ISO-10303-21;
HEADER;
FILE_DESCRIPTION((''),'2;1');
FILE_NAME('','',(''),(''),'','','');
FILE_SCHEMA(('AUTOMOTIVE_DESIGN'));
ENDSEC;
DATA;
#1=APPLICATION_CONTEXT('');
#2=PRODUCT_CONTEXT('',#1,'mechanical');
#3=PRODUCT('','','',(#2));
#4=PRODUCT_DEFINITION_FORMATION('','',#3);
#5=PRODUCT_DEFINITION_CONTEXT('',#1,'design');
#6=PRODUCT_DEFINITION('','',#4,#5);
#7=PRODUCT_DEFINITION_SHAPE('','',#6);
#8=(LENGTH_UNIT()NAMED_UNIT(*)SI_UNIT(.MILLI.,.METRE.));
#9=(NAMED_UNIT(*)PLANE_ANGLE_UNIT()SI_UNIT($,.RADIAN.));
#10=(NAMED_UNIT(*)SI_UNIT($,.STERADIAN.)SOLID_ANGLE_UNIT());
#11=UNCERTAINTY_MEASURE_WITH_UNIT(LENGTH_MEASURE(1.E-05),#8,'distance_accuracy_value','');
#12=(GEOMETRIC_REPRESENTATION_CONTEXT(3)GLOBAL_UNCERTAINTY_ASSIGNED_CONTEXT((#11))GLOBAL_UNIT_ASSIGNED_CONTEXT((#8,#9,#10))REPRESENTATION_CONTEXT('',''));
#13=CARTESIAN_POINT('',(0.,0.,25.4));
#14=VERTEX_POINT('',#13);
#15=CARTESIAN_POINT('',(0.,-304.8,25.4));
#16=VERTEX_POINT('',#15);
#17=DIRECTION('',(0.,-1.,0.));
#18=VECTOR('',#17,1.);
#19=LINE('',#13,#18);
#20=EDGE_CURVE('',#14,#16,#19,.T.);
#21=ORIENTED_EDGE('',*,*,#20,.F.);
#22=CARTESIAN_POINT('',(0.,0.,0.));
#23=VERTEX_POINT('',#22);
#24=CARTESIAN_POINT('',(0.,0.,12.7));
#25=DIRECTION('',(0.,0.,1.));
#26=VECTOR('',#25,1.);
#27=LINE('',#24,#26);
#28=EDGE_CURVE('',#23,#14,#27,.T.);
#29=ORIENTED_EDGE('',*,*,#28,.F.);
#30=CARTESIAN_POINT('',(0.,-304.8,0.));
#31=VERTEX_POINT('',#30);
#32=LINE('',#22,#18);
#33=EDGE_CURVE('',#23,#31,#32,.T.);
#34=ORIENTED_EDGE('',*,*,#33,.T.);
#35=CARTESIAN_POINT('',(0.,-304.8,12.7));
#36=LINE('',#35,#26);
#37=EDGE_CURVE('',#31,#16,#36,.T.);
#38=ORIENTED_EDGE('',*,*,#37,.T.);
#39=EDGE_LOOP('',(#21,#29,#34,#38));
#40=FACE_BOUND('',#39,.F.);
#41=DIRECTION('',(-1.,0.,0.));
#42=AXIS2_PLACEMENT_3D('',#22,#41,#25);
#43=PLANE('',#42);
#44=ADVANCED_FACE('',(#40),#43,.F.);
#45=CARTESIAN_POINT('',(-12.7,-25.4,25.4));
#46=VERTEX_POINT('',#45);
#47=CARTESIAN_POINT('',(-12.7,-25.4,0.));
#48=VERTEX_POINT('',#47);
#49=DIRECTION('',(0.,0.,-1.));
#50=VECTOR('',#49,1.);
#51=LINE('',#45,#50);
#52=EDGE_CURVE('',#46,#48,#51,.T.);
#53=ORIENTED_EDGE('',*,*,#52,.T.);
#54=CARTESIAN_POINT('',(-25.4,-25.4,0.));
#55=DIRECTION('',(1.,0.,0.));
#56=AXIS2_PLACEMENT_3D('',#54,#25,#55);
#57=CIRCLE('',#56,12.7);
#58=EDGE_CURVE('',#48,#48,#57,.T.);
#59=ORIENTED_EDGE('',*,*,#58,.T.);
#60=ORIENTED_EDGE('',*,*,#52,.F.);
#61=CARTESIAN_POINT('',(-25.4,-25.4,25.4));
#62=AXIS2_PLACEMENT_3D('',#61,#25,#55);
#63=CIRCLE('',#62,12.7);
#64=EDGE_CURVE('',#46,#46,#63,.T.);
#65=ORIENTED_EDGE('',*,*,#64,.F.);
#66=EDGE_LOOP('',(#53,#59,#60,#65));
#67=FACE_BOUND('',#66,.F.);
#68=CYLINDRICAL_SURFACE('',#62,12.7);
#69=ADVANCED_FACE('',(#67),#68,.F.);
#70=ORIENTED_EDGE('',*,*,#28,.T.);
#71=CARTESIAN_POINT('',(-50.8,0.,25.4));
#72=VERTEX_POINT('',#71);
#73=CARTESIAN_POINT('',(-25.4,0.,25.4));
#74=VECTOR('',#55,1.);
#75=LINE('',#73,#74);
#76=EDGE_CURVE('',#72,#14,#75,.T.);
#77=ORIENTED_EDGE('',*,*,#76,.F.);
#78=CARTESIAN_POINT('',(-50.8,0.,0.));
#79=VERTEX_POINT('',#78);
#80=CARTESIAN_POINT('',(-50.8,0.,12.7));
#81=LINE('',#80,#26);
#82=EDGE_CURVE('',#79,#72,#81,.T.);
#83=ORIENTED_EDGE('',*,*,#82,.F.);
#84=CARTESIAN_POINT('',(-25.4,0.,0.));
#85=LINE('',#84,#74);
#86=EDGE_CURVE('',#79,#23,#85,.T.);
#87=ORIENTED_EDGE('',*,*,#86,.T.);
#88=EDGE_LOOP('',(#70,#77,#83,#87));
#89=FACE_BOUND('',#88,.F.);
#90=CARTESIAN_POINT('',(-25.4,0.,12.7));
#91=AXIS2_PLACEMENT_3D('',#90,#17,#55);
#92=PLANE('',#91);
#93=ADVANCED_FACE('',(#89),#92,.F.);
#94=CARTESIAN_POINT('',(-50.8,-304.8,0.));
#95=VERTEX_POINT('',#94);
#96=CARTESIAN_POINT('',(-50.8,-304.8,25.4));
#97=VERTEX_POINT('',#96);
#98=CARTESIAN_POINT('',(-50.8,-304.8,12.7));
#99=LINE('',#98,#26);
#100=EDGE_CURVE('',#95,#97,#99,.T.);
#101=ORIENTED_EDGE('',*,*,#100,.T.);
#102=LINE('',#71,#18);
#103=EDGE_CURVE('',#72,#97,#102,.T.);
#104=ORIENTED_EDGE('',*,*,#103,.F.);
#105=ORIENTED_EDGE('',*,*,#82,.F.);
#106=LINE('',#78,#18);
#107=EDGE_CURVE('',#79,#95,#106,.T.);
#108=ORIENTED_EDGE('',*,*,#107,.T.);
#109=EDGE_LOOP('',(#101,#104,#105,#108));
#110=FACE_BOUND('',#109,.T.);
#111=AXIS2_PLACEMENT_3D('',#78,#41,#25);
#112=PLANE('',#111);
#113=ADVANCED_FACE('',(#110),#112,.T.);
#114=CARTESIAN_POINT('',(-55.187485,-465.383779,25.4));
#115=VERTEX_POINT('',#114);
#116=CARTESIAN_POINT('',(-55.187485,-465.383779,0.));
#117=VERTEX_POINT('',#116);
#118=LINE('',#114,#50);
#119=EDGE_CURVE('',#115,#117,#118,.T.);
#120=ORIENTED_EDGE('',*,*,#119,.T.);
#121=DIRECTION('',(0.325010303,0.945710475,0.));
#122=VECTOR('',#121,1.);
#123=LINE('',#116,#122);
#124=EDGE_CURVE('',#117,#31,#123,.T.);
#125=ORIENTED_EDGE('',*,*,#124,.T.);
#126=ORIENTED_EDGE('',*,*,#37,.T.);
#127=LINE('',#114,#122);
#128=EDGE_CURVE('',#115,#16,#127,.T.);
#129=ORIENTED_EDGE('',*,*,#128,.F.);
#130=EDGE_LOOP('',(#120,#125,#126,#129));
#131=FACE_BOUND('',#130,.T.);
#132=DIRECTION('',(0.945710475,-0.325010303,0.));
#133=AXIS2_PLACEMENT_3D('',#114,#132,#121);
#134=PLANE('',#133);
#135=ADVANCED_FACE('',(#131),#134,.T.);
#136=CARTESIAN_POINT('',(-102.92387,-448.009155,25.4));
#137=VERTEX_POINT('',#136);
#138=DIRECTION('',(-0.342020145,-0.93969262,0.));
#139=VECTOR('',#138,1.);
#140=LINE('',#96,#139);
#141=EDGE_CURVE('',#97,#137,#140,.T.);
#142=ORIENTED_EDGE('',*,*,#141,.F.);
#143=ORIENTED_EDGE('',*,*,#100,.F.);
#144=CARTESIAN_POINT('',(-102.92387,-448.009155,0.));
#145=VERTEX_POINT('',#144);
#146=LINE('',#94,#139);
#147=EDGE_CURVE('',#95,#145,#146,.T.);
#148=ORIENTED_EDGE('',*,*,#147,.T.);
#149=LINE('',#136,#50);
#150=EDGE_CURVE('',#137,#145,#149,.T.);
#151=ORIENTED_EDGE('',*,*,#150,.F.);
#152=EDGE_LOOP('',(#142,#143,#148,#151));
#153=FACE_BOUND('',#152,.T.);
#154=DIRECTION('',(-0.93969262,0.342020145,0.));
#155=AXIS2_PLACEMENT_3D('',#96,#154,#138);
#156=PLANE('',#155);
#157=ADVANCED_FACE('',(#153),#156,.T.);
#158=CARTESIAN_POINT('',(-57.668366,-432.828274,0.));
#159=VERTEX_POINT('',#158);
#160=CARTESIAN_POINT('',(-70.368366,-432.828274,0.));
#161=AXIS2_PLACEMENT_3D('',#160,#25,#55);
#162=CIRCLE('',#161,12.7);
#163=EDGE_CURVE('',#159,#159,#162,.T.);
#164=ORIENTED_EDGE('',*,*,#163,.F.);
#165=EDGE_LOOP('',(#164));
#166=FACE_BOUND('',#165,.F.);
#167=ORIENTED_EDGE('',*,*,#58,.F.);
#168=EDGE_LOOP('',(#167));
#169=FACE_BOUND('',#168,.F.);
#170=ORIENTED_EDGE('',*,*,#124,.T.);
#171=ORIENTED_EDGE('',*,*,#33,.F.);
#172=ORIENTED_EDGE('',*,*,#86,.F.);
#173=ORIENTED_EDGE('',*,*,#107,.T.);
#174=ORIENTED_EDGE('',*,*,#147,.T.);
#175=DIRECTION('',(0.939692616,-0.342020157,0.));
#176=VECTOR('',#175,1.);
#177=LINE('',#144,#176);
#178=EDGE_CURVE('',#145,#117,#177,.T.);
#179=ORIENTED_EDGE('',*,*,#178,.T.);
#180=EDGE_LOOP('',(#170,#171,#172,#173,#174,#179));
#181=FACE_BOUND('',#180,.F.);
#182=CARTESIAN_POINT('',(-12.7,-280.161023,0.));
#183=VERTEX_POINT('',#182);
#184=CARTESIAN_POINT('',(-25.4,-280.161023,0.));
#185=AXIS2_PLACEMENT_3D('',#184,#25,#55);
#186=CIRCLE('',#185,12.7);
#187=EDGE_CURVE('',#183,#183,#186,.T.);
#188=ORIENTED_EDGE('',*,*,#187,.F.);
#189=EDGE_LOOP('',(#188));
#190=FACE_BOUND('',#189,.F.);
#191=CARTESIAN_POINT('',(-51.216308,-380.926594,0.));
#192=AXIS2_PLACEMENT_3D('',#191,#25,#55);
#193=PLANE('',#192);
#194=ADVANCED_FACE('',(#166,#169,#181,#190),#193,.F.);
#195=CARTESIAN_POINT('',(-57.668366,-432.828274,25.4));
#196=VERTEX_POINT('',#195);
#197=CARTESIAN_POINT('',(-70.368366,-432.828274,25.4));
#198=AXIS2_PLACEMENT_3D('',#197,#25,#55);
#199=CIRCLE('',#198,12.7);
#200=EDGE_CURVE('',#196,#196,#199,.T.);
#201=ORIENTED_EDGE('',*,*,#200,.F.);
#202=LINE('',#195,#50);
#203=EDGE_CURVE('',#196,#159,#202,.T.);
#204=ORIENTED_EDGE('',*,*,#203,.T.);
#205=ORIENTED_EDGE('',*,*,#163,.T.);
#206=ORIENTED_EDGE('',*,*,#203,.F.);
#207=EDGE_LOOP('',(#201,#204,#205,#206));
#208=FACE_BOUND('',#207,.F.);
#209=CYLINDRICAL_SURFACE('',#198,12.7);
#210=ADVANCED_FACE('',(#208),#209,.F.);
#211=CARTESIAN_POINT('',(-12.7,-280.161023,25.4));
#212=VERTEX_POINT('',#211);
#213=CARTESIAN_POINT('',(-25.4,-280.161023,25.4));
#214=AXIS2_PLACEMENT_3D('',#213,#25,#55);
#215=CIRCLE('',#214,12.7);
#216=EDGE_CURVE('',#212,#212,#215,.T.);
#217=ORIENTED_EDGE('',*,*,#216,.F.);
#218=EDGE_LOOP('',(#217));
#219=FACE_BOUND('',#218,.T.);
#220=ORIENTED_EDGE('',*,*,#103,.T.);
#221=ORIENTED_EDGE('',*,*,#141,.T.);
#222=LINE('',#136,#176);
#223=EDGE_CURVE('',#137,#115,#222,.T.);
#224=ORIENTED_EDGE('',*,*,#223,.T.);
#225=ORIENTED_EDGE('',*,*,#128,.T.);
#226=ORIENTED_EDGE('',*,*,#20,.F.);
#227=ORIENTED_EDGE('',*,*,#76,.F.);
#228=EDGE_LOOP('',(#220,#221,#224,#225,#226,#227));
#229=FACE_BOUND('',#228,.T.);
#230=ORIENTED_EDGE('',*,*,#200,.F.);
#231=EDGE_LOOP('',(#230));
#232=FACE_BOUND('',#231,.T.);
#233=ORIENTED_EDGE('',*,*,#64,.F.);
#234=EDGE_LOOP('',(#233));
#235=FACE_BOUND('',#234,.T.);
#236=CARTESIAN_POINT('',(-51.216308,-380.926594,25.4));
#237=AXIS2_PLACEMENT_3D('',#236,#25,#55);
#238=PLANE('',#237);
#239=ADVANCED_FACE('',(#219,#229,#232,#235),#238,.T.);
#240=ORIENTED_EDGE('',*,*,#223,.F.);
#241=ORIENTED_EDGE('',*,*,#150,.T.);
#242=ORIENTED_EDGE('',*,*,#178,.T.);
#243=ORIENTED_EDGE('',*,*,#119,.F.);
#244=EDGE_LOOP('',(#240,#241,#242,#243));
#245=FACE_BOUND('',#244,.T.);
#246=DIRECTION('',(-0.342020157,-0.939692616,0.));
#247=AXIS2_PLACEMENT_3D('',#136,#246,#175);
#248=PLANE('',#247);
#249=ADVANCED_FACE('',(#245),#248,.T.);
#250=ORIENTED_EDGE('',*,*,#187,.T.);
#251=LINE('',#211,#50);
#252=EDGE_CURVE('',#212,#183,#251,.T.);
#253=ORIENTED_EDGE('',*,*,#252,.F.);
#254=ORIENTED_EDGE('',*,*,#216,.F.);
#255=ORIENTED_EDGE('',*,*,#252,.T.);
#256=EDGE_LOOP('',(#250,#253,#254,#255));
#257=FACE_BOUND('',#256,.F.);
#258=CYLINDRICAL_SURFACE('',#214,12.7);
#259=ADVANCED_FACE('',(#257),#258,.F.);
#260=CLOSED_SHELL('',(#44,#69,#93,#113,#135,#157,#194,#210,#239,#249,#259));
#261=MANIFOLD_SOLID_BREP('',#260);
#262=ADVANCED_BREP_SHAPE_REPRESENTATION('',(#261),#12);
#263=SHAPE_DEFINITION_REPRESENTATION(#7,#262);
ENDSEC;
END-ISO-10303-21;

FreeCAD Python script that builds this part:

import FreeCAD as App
import Part
import Sketcher

V = App.Vector
Q = App.Units.Quantity

doc = App.newDocument("Part")
params = doc.addObject("Spreadsheet::Sheet", "Params")
for row, (alias, value) in enumerate([
    ("sketch1_width", "2 in"),
    ("sketch1_height", "1 in"),
    ("pad1_length", "12 in"),
    ("sketch2_width", "2 in"),
    ("sketch2_length", "6 in"),
    ("sketch2_length2", "2 in"),
    ("pad2_length", "1 in"),
    ("sketch3_diameter", "1 in"),
    ("pocket1_length", "1 in"),
    ("sketch4_diameter", "1 in"),
    ("pocket2_length", "1 in"),
    ("sketch5_diameter", "1 in"),
    ("pocket3_length", "1 in"),
], start=1):
    params.set(f"A{row}", alias)
    params.set(f"B{row}", "=" + value)
    params.setAlias(f"B{row}", alias)

body = doc.addObject("PartDesign::Body", "Body")

sketch1 = body.newObject("Sketcher::SketchObject", "Sketch")
sketch1.AttachmentSupport = (doc.getObject("XZ_Plane"), [""])
sketch1.MapMode = "FlatFace"
sketch1.addGeometry([
    Part.LineSegment(V(-50.8, 25.4, 0), V(-50.8, 0, 0)),
    Part.LineSegment(V(-50.8, 0, 0), V(0, 0, 0)),
    Part.LineSegment(V(0, 0, 0), V(0, 25.4, 0)),
    Part.LineSegment(V(0, 25.4, 0), V(-50.8, 25.4, 0)),
], False)
sketch1.addConstraint([
    Sketcher.Constraint("Coincident", 0, 2, 1, 1),
    Sketcher.Constraint("Coincident", 1, 2, 2, 1),
    Sketcher.Constraint("Coincident", 2, 2, 3, 1),
    Sketcher.Constraint("Coincident", 3, 2, 0, 1),
    Sketcher.Constraint("Vertical", 0),
    Sketcher.Constraint("Horizontal", 1),
    Sketcher.Constraint("Vertical", 2),
    Sketcher.Constraint("Horizontal", 3),
    Sketcher.Constraint("Coincident", 1, 2, -1, 1),
    Sketcher.Constraint("DistanceX", 1, 1, 1, 2, Q("2 in")),
    Sketcher.Constraint("DistanceY", 0, 2, 0, 1, Q("1 in")),
])
sketch1.setExpression("Constraints[9]", "Params.sketch1_width")
sketch1.setExpression("Constraints[10]", "Params.sketch1_height")
pad1 = body.newObject("PartDesign::Pad", "Pad")
pad1.Profile = sketch1
pad1.setExpression("Length", "Params.pad1_length")

sketch2 = body.newObject("Sketcher::SketchObject", "Sketch001")
sketch2.AttachmentSupport = (doc.getObject("XY_Plane"), [""])
sketch2.MapMode = "FlatFace"
sketch2.AttachmentOffset = App.Placement(V(0, 0, 1 * 25.4), App.Rotation())
sketch2.addGeometry([
    Part.LineSegment(V(0, -304.8, 0), V(-50.8, -304.8, 0)),
    Part.LineSegment(V(-50.8, -304.8, 0), V(-102.92387, -448.009155, 0)),
    Part.LineSegment(V(-102.92387, -448.009155, 0), V(-55.187485, -465.383779, 0)),
    Part.LineSegment(V(-55.187485, -465.383779, 0), V(0, -304.8, 0)),
], False)
sketch2.addConstraint([
    Sketcher.Constraint("Coincident", 0, 2, 1, 1),
    Sketcher.Constraint("Coincident", 1, 2, 2, 1),
    Sketcher.Constraint("Coincident", 2, 2, 3, 1),
    Sketcher.Constraint("Coincident", 3, 2, 0, 1),
    Sketcher.Constraint("Horizontal", 0),
    Sketcher.Constraint("PointOnObject", 3, 2, -2),
    Sketcher.Constraint("Perpendicular", 1, 2),
    Sketcher.Constraint("DistanceX", 0, 2, 0, 1, Q("2 in")),
    Sketcher.Constraint("Distance", 1, Q("6 in")),
    Sketcher.Constraint("Distance", 2, Q("2 in")),
    Sketcher.Constraint("DistanceY", 0, 2, -1, 1, Q("12 in")),
    Sketcher.Constraint("Angle", 1, Q("-110 deg")),
])
sketch2.setExpression("Constraints[7]", "Params.sketch2_width")
sketch2.setExpression("Constraints[8]", "Params.sketch2_length")
sketch2.setExpression("Constraints[9]", "Params.sketch2_length2")
pad2 = body.newObject("PartDesign::Pad", "Pad001")
pad2.Profile = sketch2
pad2.setExpression("Length", "Params.pad2_length")
pad2.Reversed = True

sketch3 = body.newObject("Sketcher::SketchObject", "Sketch002")
sketch3.AttachmentSupport = (doc.getObject("XY_Plane"), [""])
sketch3.MapMode = "FlatFace"
sketch3.AttachmentOffset = App.Placement(V(0, 0, 1 * 25.4), App.Rotation())
sketch3.addGeometry(Part.Circle(V(-25.4, -25.4, 0), V(0, 0, 1), 12.7), False)
sketch3.addConstraint([
    Sketcher.Constraint("Diameter", 0, Q("1 in")),
    Sketcher.Constraint("DistanceX", 0, 3, -1, 1, Q("1 in")),
    Sketcher.Constraint("DistanceY", 0, 3, -1, 1, Q("1 in")),
])
sketch3.setExpression("Constraints[0]", "Params.sketch3_diameter")
pocket1 = body.newObject("PartDesign::Pocket", "Pocket")
pocket1.Profile = sketch3
pocket1.setExpression("Length", "Params.pocket1_length")

sketch4 = body.newObject("Sketcher::SketchObject", "Sketch003")
sketch4.AttachmentSupport = (doc.getObject("XY_Plane"), [""])
sketch4.MapMode = "FlatFace"
sketch4.AttachmentOffset = App.Placement(V(0, 0, 1 * 25.4), App.Rotation())
sketch4.addGeometry(Part.Circle(V(-70.368366, -432.828274, 0), V(0, 0, 1), 12.7), False)
sketch4.addConstraint([
    Sketcher.Constraint("Diameter", 0, Q("1 in")),
    Sketcher.Constraint("DistanceX", 0, 3, -1, 1, Q("70.368366 mm")),
    Sketcher.Constraint("DistanceY", 0, 3, -1, 1, Q("432.828274 mm")),
])
sketch4.setExpression("Constraints[0]", "Params.sketch4_diameter")
pocket2 = body.newObject("PartDesign::Pocket", "Pocket001")
pocket2.Profile = sketch4
pocket2.setExpression("Length", "Params.pocket2_length")

sketch5 = body.newObject("Sketcher::SketchObject", "Sketch004")
sketch5.AttachmentSupport = (doc.getObject("XY_Plane"), [""])
sketch5.MapMode = "FlatFace"
sketch5.AttachmentOffset = App.Placement(V(0, 0, 1 * 25.4), App.Rotation())
sketch5.addGeometry(Part.Circle(V(-25.4, -280.161023, 0), V(0, 0, 1), 12.7), False)
sketch5.addConstraint([
    Sketcher.Constraint("Diameter", 0, Q("1 in")),
    Sketcher.Constraint("DistanceX", 0, 3, -1, 1, Q("1 in")),
    Sketcher.Constraint("DistanceY", 0, 3, -1, 1, Q("280.161023 mm")),
])
sketch5.setExpression("Constraints[0]", "Params.sketch5_diameter")
pocket3 = body.newObject("PartDesign::Pocket", "Pocket002")
pocket3.Profile = sketch5
pocket3.setExpression("Length", "Params.pocket3_length")

doc.recompute()
